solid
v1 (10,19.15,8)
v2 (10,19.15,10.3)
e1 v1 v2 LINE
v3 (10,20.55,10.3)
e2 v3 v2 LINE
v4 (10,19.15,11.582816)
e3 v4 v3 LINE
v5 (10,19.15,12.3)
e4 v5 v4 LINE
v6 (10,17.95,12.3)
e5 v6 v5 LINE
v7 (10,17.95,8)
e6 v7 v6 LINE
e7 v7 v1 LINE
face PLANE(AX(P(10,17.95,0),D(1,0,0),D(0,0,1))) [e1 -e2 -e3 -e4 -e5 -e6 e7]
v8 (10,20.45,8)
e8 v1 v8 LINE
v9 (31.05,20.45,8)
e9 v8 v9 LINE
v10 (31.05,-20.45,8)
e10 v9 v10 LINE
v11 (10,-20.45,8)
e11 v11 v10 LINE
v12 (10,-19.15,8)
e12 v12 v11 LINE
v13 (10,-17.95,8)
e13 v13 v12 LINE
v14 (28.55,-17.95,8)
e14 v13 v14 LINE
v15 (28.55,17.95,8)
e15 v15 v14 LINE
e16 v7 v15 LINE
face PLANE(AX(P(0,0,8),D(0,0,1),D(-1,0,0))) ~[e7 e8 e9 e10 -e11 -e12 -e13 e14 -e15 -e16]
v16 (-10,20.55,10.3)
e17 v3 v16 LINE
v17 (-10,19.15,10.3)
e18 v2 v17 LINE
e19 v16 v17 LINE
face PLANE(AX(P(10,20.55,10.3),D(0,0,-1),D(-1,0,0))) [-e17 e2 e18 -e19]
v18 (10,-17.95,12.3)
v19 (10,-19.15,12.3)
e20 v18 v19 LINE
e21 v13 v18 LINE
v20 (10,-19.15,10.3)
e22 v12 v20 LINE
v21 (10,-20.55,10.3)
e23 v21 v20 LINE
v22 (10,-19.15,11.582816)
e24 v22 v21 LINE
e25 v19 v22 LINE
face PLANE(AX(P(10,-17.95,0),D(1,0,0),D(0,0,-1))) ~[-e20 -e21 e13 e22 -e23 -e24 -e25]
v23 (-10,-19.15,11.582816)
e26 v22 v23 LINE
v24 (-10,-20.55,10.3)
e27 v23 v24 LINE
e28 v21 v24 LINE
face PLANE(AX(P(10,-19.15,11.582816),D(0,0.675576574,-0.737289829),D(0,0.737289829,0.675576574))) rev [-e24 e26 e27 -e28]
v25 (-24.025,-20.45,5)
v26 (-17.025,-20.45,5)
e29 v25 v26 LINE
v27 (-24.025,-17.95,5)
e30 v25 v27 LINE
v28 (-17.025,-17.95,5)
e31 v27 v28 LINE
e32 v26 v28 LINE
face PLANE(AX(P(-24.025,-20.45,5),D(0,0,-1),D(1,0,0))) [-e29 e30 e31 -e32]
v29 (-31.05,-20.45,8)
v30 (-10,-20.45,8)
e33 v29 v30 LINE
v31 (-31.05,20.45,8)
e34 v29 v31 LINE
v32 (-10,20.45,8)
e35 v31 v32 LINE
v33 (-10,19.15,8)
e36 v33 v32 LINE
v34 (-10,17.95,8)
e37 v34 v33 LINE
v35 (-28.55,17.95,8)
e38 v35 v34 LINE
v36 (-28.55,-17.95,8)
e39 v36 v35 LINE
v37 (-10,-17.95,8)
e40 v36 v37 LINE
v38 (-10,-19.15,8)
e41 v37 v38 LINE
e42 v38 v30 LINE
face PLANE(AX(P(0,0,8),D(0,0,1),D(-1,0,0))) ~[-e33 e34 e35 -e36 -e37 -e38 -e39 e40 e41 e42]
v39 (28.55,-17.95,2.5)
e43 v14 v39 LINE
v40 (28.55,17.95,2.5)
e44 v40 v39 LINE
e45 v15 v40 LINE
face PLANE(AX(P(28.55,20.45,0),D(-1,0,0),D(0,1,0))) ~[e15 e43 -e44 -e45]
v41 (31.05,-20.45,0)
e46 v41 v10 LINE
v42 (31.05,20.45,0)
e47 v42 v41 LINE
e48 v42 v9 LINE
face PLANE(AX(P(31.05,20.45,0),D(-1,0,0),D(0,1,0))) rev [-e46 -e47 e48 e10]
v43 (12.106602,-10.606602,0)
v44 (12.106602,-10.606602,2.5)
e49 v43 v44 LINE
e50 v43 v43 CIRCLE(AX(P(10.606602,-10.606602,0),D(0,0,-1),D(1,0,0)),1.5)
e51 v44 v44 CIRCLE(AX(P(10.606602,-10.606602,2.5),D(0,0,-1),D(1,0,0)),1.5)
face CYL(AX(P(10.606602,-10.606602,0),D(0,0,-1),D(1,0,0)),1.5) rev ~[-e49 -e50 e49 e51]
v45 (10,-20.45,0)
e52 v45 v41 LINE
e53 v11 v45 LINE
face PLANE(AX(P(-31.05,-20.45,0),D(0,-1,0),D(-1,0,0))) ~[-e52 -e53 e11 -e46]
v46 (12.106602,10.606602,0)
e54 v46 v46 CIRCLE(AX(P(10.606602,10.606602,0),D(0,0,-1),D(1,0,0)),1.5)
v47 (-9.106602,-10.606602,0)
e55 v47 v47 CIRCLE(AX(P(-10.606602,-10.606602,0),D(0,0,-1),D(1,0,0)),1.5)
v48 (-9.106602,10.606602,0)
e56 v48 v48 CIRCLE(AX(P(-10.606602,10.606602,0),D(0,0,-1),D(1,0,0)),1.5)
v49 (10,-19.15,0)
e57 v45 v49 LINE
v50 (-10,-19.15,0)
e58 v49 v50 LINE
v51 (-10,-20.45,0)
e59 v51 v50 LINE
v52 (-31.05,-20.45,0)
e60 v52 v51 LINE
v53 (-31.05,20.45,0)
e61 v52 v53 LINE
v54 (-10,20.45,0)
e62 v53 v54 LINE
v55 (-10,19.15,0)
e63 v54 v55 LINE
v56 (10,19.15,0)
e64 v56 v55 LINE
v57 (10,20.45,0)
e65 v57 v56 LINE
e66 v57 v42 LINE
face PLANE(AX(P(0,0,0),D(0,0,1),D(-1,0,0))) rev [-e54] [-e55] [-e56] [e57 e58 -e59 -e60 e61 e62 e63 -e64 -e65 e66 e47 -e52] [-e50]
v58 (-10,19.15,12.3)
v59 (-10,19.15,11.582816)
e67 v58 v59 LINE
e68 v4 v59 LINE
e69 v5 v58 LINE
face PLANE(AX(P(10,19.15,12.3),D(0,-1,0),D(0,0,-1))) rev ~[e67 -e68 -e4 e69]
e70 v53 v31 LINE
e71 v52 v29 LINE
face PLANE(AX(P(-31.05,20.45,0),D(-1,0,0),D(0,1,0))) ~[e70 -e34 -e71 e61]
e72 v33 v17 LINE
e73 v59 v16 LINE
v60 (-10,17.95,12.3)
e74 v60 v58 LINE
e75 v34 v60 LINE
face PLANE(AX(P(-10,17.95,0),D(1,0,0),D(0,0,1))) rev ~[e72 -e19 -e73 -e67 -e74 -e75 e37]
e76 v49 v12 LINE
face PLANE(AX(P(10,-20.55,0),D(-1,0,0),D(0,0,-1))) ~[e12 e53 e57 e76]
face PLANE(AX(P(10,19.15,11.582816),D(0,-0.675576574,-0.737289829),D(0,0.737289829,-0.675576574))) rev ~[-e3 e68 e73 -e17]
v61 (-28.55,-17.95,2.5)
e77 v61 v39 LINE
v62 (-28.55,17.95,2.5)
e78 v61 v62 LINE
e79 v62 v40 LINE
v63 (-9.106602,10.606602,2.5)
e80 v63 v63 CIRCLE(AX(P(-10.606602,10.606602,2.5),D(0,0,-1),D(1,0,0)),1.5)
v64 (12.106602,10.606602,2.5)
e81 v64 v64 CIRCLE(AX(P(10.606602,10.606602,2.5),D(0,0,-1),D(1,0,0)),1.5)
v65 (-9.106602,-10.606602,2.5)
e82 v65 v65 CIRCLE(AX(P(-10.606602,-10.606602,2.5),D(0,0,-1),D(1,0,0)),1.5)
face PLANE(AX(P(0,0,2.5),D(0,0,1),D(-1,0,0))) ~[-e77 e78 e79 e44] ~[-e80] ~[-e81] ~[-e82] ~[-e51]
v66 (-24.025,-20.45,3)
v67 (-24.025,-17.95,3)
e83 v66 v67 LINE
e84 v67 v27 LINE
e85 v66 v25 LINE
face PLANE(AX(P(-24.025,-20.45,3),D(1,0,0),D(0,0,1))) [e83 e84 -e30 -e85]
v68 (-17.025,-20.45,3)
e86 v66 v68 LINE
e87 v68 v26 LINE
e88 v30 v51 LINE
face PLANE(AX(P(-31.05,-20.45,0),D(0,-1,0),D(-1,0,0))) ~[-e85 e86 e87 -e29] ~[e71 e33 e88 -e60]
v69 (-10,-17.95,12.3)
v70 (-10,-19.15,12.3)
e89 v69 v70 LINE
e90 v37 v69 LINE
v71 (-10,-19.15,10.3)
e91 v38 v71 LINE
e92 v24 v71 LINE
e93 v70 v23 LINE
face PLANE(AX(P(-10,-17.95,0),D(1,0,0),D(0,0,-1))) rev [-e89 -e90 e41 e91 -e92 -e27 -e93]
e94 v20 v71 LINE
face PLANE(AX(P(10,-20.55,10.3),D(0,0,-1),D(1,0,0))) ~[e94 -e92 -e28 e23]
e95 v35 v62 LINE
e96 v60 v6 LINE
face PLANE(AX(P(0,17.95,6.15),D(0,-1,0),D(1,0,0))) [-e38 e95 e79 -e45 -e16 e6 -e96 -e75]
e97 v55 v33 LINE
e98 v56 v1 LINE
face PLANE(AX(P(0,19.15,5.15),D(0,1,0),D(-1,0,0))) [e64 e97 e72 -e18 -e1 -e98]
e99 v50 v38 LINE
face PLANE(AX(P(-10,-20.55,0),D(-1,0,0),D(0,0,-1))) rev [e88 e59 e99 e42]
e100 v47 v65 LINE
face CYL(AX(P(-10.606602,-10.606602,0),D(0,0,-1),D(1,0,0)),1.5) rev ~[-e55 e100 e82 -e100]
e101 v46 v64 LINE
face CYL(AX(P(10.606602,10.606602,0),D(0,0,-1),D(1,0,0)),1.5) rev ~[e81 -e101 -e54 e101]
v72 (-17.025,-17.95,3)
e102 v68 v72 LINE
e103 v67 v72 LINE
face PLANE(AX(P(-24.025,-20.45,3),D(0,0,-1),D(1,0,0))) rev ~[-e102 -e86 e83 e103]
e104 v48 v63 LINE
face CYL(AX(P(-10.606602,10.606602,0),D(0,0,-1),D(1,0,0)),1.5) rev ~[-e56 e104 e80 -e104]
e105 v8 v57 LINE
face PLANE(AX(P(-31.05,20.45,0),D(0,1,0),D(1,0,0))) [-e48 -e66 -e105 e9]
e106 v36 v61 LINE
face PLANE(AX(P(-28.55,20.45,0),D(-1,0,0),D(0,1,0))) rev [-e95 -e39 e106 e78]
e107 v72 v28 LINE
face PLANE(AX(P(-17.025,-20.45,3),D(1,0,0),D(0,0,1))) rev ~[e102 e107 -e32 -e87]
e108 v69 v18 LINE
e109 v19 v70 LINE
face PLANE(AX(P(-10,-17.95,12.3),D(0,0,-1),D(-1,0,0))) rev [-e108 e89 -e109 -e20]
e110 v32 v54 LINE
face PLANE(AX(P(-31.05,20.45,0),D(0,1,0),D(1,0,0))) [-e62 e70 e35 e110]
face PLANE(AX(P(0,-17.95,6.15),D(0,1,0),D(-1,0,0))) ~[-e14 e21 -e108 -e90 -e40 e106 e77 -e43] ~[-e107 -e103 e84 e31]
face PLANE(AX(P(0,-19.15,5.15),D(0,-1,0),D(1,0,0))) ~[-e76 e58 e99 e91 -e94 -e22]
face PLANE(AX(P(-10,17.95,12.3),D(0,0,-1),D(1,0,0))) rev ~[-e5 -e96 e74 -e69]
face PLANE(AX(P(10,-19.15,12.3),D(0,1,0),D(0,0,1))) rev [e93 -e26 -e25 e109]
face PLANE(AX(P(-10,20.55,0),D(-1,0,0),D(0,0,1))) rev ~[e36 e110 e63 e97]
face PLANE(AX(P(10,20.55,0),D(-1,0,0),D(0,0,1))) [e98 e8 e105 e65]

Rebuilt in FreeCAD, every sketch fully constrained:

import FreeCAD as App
import Part
import Sketcher


def faces_at(feature, points):
    """Names of the faces that lie closest to the given points."""
    faces = feature.Shape.Faces
    near = lambda p: min(range(len(faces)), key=lambda i: faces[i].distToShape(Part.Vertex(*p))[0])
    return sorted({f"Face{near(p) + 1}" for p in points})

doc = App.newDocument("Part")
body = doc.addObject("PartDesign::Body", "Body")

# Sketch on XY plane
sketch1 = body.newObject("Sketcher::SketchObject", "Sketch")
sketch1.AttachmentSupport = (doc.getObject("XY_Plane"), [""])
sketch1.MapMode = "FlatFace"
sketch1.addGeometry(Part.LineSegment(App.Vector(-31.05, 20.45, 0), App.Vector(-31.05, -20.45, 0)), False)
sketch1.addGeometry(Part.LineSegment(App.Vector(-31.05, -20.45, 0), App.Vector(31.05, -20.45, 0)), False)
sketch1.addGeometry(Part.LineSegment(App.Vector(31.05, -20.45, 0), App.Vector(31.05, 20.45, 0)), False)
sketch1.addGeometry(Part.LineSegment(App.Vector(31.05, 20.45, 0), App.Vector(-31.05, 20.45, 0)), False)
sketch1.addConstraint(Sketcher.Constraint("Coincident", 0, 2, 1, 1))
sketch1.addConstraint(Sketcher.Constraint("Coincident", 1, 2, 2, 1))
sketch1.addConstraint(Sketcher.Constraint("Coincident", 2, 2, 3, 1))
sketch1.addConstraint(Sketcher.Constraint("Coincident", 3, 2, 0, 1))
sketch1.addConstraint(Sketcher.Constraint("Vertical", 0))
sketch1.addConstraint(Sketcher.Constraint("Horizontal", 1))
sketch1.addConstraint(Sketcher.Constraint("Vertical", 2))
sketch1.addConstraint(Sketcher.Constraint("Horizontal", 3))
sketch1.addConstraint(Sketcher.Constraint("Symmetric", 0, 2, 2, 2, -1, 1))
sketch1.addConstraint(Sketcher.Constraint("DistanceX", 1, 1, 1, 2, 62.1))
sketch1.addConstraint(Sketcher.Constraint("DistanceY", 0, 2, 0, 1, 40.9))
pad1 = body.newObject("PartDesign::Pad", "Pad")
pad1.Profile = sketch1
pad1.Length = 8
doc.recompute()

thickness = body.newObject("PartDesign::Thickness", "Thickness")
thickness.Base = (pad1, faces_at(pad1, [(0, 0, 8)]))
thickness.Value = 2.5
thickness.Reversed = True
thickness.Join = "Arc"

# Sketch on XZ plane
sketch2 = body.newObject("Sketcher::SketchObject", "Sketch001")
sketch2.AttachmentSupport = (doc.getObject("XZ_Plane"), [""])
sketch2.MapMode = "FlatFace"
sketch2.AttachmentOffset = App.Placement(App.Vector(0, 0, -17.95), App.Rotation())
sketch2.addGeometry(Part.LineSegment(App.Vector(-10, 12.3, 0), App.Vector(-10, 0, 0)), False)
sketch2.addGeometry(Part.LineSegment(App.Vector(-10, 0, 0), App.Vector(10, 0, 0)), False)
sketch2.addGeometry(Part.LineSegment(App.Vector(10, 0, 0), App.Vector(10, 12.3, 0)), False)
sketch2.addGeometry(Part.LineSegment(App.Vector(10, 12.3, 0), App.Vector(-10, 12.3, 0)), False)
sketch2.addConstraint(Sketcher.Constraint("Coincident", 0, 2, 1, 1))
sketch2.addConstraint(Sketcher.Constraint("Coincident", 1, 2, 2, 1))
sketch2.addConstraint(Sketcher.Constraint("Coincident", 2, 2, 3, 1))
sketch2.addConstraint(Sketcher.Constraint("Coincident", 3, 2, 0, 1))
sketch2.addConstraint(Sketcher.Constraint("Vertical", 0))
sketch2.addConstraint(Sketcher.Constraint("Horizontal", 1))
sketch2.addConstraint(Sketcher.Constraint("Vertical", 2))
sketch2.addConstraint(Sketcher.Constraint("Horizontal", 3))
sketch2.addConstraint(Sketcher.Constraint("Symmetric", 0, 2, 1, 2, -1, 1))
sketch2.addConstraint(Sketcher.Constraint("DistanceX", 1, 1, 1, 2, 20.0))
sketch2.addConstraint(Sketcher.Constraint("DistanceY", 0, 2, 0, 1, 12.3))
pad2 = body.newObject("PartDesign::Pad", "Pad001")
pad2.Profile = sketch2
pad2.Length = 2.6
pad2.Reversed = True

# Sketch on XZ plane
sketch3 = body.newObject("Sketcher::SketchObject", "Sketch002")
sketch3.AttachmentSupport = (doc.getObject("XZ_Plane"), [""])
sketch3.MapMode = "FlatFace"
sketch3.AttachmentOffset = App.Placement(App.Vector(0, 0, -20.55), App.Rotation())
sketch3.addGeometry(Part.LineSegment(App.Vector(10, 10.3, 0), App.Vector(10, 0, 0)), False)
sketch3.addGeometry(Part.LineSegment(App.Vector(10, 0, 0), App.Vector(-10, 0, 0)), False)
sketch3.addGeometry(Part.LineSegment(App.Vector(-10, 0, 0), App.Vector(-10, 10.3, 0)), False)
sketch3.addGeometry(Part.LineSegment(App.Vector(-10, 10.3, 0), App.Vector(10, 10.3, 0)), False)
sketch3.addConstraint(Sketcher.Constraint("Coincident", 0, 2, 1, 1))
sketch3.addConstraint(Sketcher.Constraint("Coincident", 1, 2, 2, 1))
sketch3.addConstraint(Sketcher.Constraint("Coincident", 2, 2, 3, 1))
sketch3.addConstraint(Sketcher.Constraint("Coincident", 3, 2, 0, 1))
sketch3.addConstraint(Sketcher.Constraint("Vertical", 0))
sketch3.addConstraint(Sketcher.Constraint("Horizontal", 1))
sketch3.addConstraint(Sketcher.Constraint("Vertical", 2))
sketch3.addConstraint(Sketcher.Constraint("Horizontal", 3))
sketch3.addConstraint(Sketcher.Constraint("Symmetric", 0, 2, 1, 2, -1, 1))
sketch3.addConstraint(Sketcher.Constraint("DistanceX", 1, 2, 1, 1, 20.0))
sketch3.addConstraint(Sketcher.Constraint("DistanceY", 0, 2, 0, 1, 10.3))
pocket1 = body.newObject("PartDesign::Pocket", "Pocket")
pocket1.Profile = sketch3
pocket1.Length = 1.4
pocket1.Reversed = True

# Sketch on YZ plane
sketch4 = body.newObject("Sketcher::SketchObject", "Sketch003")
sketch4.AttachmentSupport = (doc.getObject("YZ_Plane"), [""])
sketch4.MapMode = "FlatFace"
sketch4.AttachmentOffset = App.Placement(App.Vector(0, 0, 10), App.Rotation())
sketch4.addGeometry(Part.LineSegment(App.Vector(19.15, 11.582816, 0), App.Vector(20.55, 10.3, 0)), False)
sketch4.addGeometry(Part.LineSegment(App.Vector(20.55, 10.3, 0), App.Vector(20.55, 12.3, 0)), False)
sketch4.addGeometry(Part.LineSegment(App.Vector(20.55, 12.3, 0), App.Vector(19.15, 12.3, 0)), False)
sketch4.addGeometry(Part.LineSegment(App.Vector(19.15, 12.3, 0), App.Vector(19.15, 11.582816, 0)), False)
sketch4.addConstraint(Sketcher.Constraint("Coincident", 0, 2, 1, 1))
sketch4.addConstraint(Sketcher.Constraint("Coincident", 1, 2, 2, 1))
sketch4.addConstraint(Sketcher.Constraint("Coincident", 2, 2, 3, 1))
sketch4.addConstraint(Sketcher.Constraint("Coincident", 3, 2, 0, 1))
sketch4.addConstraint(Sketcher.Constraint("Vertical", 1))
sketch4.addConstraint(Sketcher.Constraint("Horizontal", 2))
sketch4.addConstraint(Sketcher.Constraint("Vertical", 3))
sketch4.addConstraint(Sketcher.Constraint("DistanceY", 1, 1, 1, 2, 2.0))
sketch4.addConstraint(Sketcher.Constraint("DistanceX", 2, 2, 2, 1, 1.4))
sketch4.addConstraint(Sketcher.Constraint("DistanceY", -1, 1, 0, 2, 10.3))
sketch4.addConstraint(Sketcher.Constraint("DistanceX", -1, 1, 0, 2, 20.55))
sketch4.addConstraint(Sketcher.Constraint("DistanceY", 3, 2, 3, 1, 0.717184))
pocket2 = body.newObject("PartDesign::Pocket", "Pocket001")
pocket2.Profile = sketch4
pocket2.Type = "ThroughAll"

# Sketch on XY plane
sketch5 = body.newObject("Sketcher::SketchObject", "Sketch004")
sketch5.AttachmentSupport = (doc.getObject("XY_Plane"), [""])
sketch5.MapMode = "FlatFace"
sketch5.AttachmentOffset = App.Placement(App.Vector(0, 0, 2.5), App.Rotation())
sketch5.addGeometry(Part.LineSegment(App.Vector(-41.730471, 0, 0), App.Vector(-41.730471, -28.715169, 0)), False)
sketch5.addGeometry(Part.LineSegment(App.Vector(-41.730471, -28.715169, 0), App.Vector(39.653447, -28.715169, 0)), False)
sketch5.addGeometry(Part.LineSegment(App.Vector(39.653447, -28.715169, 0), App.Vector(39.653447, 0, 0)), False)
sketch5.addGeometry(Part.LineSegment(App.Vector(39.653447, 0, 0), App.Vector(-41.730471, 0, 0)), False)
sketch5.addConstraint(Sketcher.Constraint("Coincident", 0, 2, 1, 1))
sketch5.addConstraint(Sketcher.Constraint("Coincident", 1, 2, 2, 1))
sketch5.addConstraint(Sketcher.Constraint("Coincident", 2, 2, 3, 1))
sketch5.addConstraint(Sketcher.Constraint("Coincident", 3, 2, 0, 1))
sketch5.addConstraint(Sketcher.Constraint("Vertical", 0))
sketch5.addConstraint(Sketcher.Constraint("Horizontal", 1))
sketch5.addConstraint(Sketcher.Constraint("Vertical", 2))
sketch5.addConstraint(Sketcher.Constraint("Horizontal", 3))
sketch5.addConstraint(Sketcher.Constraint("PointOnObject", 2, 2, -1))
sketch5.addConstraint(Sketcher.Constraint("DistanceY", 0, 2, 0, 1, 28.715169))
sketch5.addConstraint(Sketcher.Constraint("DistanceX", 1, 1, 1, 2, 81.383917))
sketch5.addConstraint(Sketcher.Constraint("DistanceX", 0, 2, -1, 1, 41.730471))
pocket3 = body.newObject("PartDesign::Pocket", "Pocket002")
pocket3.Profile = sketch5
pocket3.Type = "ThroughAll"
pocket3.Midplane = True
body2 = doc.addObject("PartDesign::Body", "Body001")
doc.recompute()

body2.BaseFeature = body
doc.recompute()

mirroring = doc.addObject("Part::Mirroring", "Mirroring")
mirroring.Source = body
mirroring.Base = App.Vector(0, 0, 0)
mirroring.Normal = App.Vector(0, -1, 0)
body3 = doc.addObject("PartDesign::Body", "Body002")
body3.BaseFeature = mirroring
boolean = body2.newObject("PartDesign::Boolean", "Boolean")
boolean.Type = "Fuse"
boolean.addObjects([body3])
doc.recompute()

# Sketch on XZ plane
sketch6 = body2.newObject("Sketcher::SketchObject", "Sketch005")
sketch6.AttachmentSupport = (doc.getObject("XZ_Plane001"), [""])
sketch6.MapMode = "FlatFace"
sketch6.AttachmentOffset = App.Placement(App.Vector(0, 0, 20.45), App.Rotation())
sketch6.addGeometry(Part.LineSegment(App.Vector(-24.025, 5, 0), App.Vector(-24.025, 3, 0)), False)
sketch6.addGeometry(Part.LineSegment(App.Vector(-24.025, 3, 0), App.Vector(-17.025, 3, 0)), False)
sketch6.addGeometry(Part.LineSegment(App.Vector(-17.025, 3, 0), App.Vector(-17.025, 5, 0)), False)
sketch6.addGeometry(Part.LineSegment(App.Vector(-17.025, 5, 0), App.Vector(-24.025, 5, 0)), False)
sketch6.addConstraint(Sketcher.Constraint("Coincident", 0, 2, 1, 1))
sketch6.addConstraint(Sketcher.Constraint("Coincident", 1, 2, 2, 1))
sketch6.addConstraint(Sketcher.Constraint("Coincident", 2, 2, 3, 1))
sketch6.addConstraint(Sketcher.Constraint("Coincident", 3, 2, 0, 1))
sketch6.addConstraint(Sketcher.Constraint("Vertical", 0))
sketch6.addConstraint(Sketcher.Constraint("Horizontal", 1))
sketch6.addConstraint(Sketcher.Constraint("Vertical", 2))
sketch6.addConstraint(Sketcher.Constraint("Horizontal", 3))
sketch6.addConstraint(Sketcher.Constraint("DistanceX", 1, 1, 1, 2, 7.0))
sketch6.addConstraint(Sketcher.Constraint("DistanceY", 0, 2, 0, 1, 2.0))
sketch6.addConstraint(Sketcher.Constraint("DistanceY", -1, 1, 0, 2, 3.0))
sketch6.addConstraint(Sketcher.Constraint("DistanceX", 0, 2, -1, 1, 24.025))
pocket4 = body2.newObject("PartDesign::Pocket", "Pocket003")
pocket4.Profile = sketch6
pocket4.Length = 2.5

# Sketch on XY plane
sketch7 = body2.newObject("Sketcher::SketchObject", "Sketch006")
sketch7.AttachmentSupport = (doc.getObject("XY_Plane001"), [""])
sketch7.MapMode = "FlatFace"
sketch7.addGeometry(Part.Circle(App.Vector(-10.606602, -10.606602, 0), App.Vector(0, 0, 1), 1.5), False)
sketch7.addGeometry(Part.Circle(App.Vector(10.606602, -10.606602, 0), App.Vector(0, 0, 1), 1.5), False)
sketch7.addGeometry(Part.Circle(App.Vector(10.606602, 10.606602, 0), App.Vector(0, 0, 1), 1.5), False)
sketch7.addGeometry(Part.Circle(App.Vector(-10.606602, 10.606602, 0), App.Vector(0, 0, 1), 1.5), False)
sketch7.addConstraint(Sketcher.Constraint("Equal", 0, 1))
sketch7.addConstraint(Sketcher.Constraint("Equal", 1, 2))
sketch7.addConstraint(Sketcher.Constraint("Equal", 2, 3))
sketch7.addConstraint(Sketcher.Constraint("Symmetric", 0, 3, 2, 3, -1, 1))
sketch7.addConstraint(Sketcher.Constraint("Symmetric", 1, 3, 3, 3, -1, 1))
sketch7.addConstraint(Sketcher.Constraint("Symmetric", 0, 3, 1, 3, -2))
sketch7.addConstraint(Sketcher.Constraint("Diameter", 0, 3.0))
sketch7.addConstraint(Sketcher.Constraint("DistanceX", 0, 3, -1, 1, 10.606602))
sketch7.addConstraint(Sketcher.Constraint("DistanceY", 0, 3, -1, 1, 10.606602))
pocket5 = body2.newObject("PartDesign::Pocket", "Pocket004")
pocket5.Profile = sketch7
pocket5.Type = "ThroughAll"
pocket5.Reversed = True
mirroring.Visibility = False

doc.recompute()
